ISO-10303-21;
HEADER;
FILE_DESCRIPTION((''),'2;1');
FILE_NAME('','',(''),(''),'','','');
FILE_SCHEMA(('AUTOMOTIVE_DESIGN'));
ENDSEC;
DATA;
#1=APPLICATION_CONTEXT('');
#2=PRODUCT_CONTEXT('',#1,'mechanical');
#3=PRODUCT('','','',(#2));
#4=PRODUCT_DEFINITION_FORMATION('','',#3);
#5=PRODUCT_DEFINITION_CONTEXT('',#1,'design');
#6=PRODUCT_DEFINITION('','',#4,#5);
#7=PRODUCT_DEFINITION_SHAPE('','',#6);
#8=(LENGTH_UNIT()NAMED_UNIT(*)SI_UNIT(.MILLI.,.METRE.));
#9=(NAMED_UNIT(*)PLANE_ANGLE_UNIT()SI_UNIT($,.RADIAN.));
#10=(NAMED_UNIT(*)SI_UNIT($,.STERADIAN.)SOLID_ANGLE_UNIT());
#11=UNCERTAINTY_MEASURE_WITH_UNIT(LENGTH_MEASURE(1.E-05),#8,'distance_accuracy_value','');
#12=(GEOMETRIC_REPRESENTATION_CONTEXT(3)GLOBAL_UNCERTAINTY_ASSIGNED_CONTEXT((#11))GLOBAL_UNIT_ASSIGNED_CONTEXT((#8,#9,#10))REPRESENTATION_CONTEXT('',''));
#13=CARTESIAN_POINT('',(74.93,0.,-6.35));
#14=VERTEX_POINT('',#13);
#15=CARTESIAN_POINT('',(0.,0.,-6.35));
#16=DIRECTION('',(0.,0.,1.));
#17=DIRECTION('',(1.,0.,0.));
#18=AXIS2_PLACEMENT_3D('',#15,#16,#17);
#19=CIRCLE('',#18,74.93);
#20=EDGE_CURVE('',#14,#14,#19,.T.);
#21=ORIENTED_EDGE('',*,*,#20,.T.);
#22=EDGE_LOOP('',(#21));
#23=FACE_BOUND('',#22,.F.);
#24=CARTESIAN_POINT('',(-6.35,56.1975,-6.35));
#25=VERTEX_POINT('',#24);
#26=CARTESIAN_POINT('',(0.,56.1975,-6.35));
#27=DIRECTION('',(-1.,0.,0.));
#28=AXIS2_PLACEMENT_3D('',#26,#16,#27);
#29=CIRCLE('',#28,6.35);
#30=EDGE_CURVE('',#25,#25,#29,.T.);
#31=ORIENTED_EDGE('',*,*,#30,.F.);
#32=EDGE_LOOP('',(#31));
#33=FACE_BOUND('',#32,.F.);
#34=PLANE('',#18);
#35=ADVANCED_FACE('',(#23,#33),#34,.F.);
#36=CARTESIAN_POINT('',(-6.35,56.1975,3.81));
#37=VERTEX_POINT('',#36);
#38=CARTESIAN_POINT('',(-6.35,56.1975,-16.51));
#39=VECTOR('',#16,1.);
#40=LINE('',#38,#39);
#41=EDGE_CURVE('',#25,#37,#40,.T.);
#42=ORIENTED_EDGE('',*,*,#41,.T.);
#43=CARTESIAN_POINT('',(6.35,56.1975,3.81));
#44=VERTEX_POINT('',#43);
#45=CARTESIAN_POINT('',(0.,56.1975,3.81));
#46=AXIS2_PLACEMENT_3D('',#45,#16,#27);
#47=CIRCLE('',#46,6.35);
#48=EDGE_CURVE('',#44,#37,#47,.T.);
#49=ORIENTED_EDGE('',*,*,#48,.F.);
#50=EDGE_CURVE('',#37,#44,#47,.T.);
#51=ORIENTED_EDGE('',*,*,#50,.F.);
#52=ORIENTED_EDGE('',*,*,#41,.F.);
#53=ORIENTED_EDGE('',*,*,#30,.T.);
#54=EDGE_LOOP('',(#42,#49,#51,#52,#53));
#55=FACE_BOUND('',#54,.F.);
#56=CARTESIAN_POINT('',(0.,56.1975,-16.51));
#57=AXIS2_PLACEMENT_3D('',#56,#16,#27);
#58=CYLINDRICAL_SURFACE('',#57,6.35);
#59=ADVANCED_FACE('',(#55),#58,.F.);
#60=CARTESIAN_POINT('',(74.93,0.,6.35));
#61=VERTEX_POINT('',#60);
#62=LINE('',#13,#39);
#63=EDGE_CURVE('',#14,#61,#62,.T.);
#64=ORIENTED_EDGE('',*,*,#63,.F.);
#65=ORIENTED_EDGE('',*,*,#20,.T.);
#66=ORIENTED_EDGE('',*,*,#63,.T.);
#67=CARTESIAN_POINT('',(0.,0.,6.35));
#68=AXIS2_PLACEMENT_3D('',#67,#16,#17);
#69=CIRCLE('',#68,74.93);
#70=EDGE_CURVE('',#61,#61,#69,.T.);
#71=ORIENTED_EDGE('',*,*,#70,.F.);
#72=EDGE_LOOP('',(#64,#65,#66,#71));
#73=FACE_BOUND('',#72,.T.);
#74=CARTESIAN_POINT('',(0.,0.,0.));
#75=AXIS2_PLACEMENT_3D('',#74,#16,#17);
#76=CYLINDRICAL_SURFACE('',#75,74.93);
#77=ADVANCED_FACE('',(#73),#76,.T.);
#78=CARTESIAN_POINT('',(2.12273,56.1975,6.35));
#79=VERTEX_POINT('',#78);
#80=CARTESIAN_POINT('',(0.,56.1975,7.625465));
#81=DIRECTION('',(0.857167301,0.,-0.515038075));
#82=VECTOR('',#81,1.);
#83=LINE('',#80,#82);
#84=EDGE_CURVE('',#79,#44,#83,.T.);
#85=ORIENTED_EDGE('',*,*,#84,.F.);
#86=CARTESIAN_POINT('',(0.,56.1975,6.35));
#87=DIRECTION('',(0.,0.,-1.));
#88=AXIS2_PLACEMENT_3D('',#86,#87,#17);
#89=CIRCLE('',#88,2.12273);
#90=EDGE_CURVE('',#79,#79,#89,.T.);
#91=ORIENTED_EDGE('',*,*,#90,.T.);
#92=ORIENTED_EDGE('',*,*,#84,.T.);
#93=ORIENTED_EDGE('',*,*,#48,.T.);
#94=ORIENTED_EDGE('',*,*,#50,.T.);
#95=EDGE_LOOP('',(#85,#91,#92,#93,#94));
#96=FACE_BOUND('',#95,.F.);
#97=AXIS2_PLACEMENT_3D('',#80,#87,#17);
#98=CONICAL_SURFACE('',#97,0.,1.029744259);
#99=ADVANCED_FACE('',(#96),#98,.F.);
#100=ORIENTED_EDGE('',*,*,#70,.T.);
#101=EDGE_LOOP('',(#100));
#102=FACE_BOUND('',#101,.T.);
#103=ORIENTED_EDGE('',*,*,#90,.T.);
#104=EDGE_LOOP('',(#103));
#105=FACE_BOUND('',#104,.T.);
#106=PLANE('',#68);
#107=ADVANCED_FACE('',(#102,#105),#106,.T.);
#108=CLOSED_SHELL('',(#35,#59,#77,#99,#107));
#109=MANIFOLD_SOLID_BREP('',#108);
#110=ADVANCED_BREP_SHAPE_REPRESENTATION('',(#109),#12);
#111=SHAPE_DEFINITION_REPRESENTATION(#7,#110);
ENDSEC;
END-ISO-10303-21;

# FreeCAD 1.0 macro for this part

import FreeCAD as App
import Part
import Sketcher
from FreeCAD import Vector
Q = App.Units.Quantity

doc = App.newDocument("Part")
body = doc.addObject("PartDesign::Body", "Body")

# Sketch on XY plane
sketch1 = body.newObject("Sketcher::SketchObject", "Sketch")
sketch1.AttachmentSupport = (doc.getObject("XY_Plane"), [""])
sketch1.MapMode = "FlatFace"
sketch1.addGeometry(Part.Circle(Vector(0, 0, 0), Vector(0, 0, 1), 74.93), False)
sketch1.addConstraint(Sketcher.Constraint("Coincident", 0, 3, -1, 1))
sketch1.addConstraint(Sketcher.Constraint("Diameter", 0, Q("5.9 in")))
pad1 = body.newObject("PartDesign::Pad", "Pad")
pad1.Profile = sketch1
pad1.Length = Q("0.5 in")
pad1.Midplane = True

# Sketch on XY plane
sketch2 = body.newObject("Sketcher::SketchObject", "Sketch001")
sketch2.AttachmentSupport = (doc.getObject("XY_Plane"), [""])
sketch2.MapMode = "FlatFace"
sketch2.AttachmentOffset = App.Placement(Vector(0, 0, -0.25 * 25.4), App.Rotation())
sketch2.addGeometry(Part.Circle(Vector(0, 56.1975, 0), Vector(0, 0, 1), 6.35), False)
sketch2.addConstraint(Sketcher.Constraint("PointOnObject", 0, 3, -2))
sketch2.addConstraint(Sketcher.Constraint("Diameter", 0, Q("0.5 in")))
sketch2.addConstraint(Sketcher.Constraint("DistanceY", -1, 1, 0, 3, Q("2.2125 in")))
doc.recompute()
hole = body.newObject("PartDesign::Hole", "Hole")
hole.Profile = sketch2
hole.ThreadType = "None"
hole.Diameter = Q("0.5 in")
hole.DepthType = "Dimension"
hole.Depth = Q("0.4 in")
hole.DrillPoint = "Angled"
hole.DrillPointAngle = 118
hole.Reversed = True

doc.recompute()
